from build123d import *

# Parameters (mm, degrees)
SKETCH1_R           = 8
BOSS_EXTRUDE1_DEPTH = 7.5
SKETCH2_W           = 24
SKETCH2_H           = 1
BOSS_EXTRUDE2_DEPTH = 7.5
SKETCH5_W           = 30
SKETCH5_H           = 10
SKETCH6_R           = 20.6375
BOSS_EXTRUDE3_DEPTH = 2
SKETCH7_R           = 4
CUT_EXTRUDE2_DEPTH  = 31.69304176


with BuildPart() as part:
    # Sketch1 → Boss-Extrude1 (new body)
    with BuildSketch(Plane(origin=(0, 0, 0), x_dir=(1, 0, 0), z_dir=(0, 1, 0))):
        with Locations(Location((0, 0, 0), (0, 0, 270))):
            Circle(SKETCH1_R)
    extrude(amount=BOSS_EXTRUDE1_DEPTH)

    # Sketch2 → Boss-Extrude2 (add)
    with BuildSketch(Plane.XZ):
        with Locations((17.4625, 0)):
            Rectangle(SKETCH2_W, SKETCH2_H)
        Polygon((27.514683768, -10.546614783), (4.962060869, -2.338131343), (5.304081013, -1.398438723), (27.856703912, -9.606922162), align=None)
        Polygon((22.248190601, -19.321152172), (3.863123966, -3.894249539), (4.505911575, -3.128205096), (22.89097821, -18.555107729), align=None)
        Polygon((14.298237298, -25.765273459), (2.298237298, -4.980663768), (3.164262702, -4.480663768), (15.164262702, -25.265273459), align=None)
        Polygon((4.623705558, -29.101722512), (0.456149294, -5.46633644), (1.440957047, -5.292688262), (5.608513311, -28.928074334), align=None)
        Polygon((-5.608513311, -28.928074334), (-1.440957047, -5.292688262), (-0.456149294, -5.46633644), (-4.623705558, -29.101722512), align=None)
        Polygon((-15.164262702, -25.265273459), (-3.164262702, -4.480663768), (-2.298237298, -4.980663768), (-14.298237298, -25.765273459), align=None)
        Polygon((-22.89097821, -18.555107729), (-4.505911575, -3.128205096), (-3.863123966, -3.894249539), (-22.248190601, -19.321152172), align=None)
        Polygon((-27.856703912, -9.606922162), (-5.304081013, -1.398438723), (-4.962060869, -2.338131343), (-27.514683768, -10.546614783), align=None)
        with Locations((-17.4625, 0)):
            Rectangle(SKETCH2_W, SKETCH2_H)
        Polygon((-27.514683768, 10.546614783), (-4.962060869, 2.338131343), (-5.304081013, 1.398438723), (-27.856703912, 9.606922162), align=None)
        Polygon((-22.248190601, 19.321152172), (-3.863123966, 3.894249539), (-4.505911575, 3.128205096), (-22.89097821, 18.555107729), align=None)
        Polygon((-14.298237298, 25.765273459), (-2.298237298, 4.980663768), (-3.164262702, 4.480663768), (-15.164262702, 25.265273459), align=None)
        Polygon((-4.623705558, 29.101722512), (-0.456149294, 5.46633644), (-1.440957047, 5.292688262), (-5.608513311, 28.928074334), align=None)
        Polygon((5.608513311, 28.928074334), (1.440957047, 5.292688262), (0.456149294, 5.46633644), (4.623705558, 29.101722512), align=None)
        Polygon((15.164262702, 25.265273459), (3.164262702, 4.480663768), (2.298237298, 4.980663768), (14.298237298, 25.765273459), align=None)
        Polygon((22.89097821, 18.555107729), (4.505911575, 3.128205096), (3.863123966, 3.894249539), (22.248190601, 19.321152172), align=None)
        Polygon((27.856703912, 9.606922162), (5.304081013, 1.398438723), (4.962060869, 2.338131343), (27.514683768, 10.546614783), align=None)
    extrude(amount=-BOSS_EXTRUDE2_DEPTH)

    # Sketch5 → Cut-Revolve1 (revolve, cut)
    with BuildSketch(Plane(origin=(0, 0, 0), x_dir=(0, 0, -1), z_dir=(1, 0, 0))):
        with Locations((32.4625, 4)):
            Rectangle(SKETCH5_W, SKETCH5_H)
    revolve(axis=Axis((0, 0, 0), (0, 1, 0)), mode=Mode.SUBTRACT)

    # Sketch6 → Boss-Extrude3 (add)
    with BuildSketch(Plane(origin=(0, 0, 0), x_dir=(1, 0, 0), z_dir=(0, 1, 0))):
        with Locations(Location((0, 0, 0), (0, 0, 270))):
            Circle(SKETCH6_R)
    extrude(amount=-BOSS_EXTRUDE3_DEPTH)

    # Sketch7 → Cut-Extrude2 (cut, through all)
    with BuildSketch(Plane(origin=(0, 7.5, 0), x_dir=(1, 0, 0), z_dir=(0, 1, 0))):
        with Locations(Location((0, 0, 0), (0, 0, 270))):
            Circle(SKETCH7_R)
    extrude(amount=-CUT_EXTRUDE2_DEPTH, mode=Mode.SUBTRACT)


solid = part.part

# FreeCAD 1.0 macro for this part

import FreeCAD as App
import Part
import Sketcher

V = App.Vector
Q = App.Units.Quantity


def add_polygon(sketch, points):
    """Adds a closed chain of lines whose ends are joined by coincident constraints."""
    first, n = sketch.GeometryCount, len(points)
    for a, b in zip(points, points[1:] + points[:1]):
        sketch.addGeometry(Part.LineSegment(App.Vector(*a, 0), App.Vector(*b, 0)), False)
    for i in range(n):
        sketch.addConstraint(Sketcher.Constraint("Coincident", first + i, 2, first + (i + 1) % n, 1))

doc = App.newDocument("Part")
body = doc.addObject("PartDesign::Body", "Body")

# Sketch on XZ plane
sketch1 = body.newObject("Sketcher::SketchObject", "Sketch")
sketch1.AttachmentSupport = (doc.getObject("XZ_Plane"), [""])
sketch1.MapMode = "FlatFace"
sketch1.addGeometry(Part.Circle(V(0, 0, 0), V(0, 0, 1), 8), False)
sketch1.addConstraint(Sketcher.Constraint("Coincident", 0, 3, -1, 1))
sketch1.addConstraint(Sketcher.Constraint("Diameter", 0, Q("16 mm")))
pad1 = body.newObject("PartDesign::Pad", "Pad")
pad1.Profile = sketch1
pad1.Length = 7.5
pad1.Reversed = True

# Sketch on XZ plane
sketch2 = body.newObject("Sketcher::SketchObject", "Sketch001")
sketch2.AttachmentSupport = (doc.getObject("XZ_Plane"), [""])
sketch2.MapMode = "FlatFace"
add_polygon(sketch2, [(5.4625, 0.5), (5.4625, -0.5), (29.4625, -0.5), (29.4625, 0.5)])  # lines 0-3
add_polygon(sketch2, [(4.962061, -2.338131), (27.514684, -10.546615), (27.856704, -9.606922), (5.304081, -1.398439)])  # lines 4-7
add_polygon(sketch2, [(3.863124, -3.89425), (22.248191, -19.321152), (22.890978, -18.555108), (4.505912, -3.128205)])  # lines 8-11
add_polygon(sketch2, [(2.298237, -4.980664), (14.298237, -25.765273), (15.164263, -25.265273), (3.164263, -4.480664)])  # lines 12-15
add_polygon(sketch2, [(0.456149, -5.466336), (4.623706, -29.101723), (5.608513, -28.928074), (1.440957, -5.292688)])  # lines 16-19
add_polygon(sketch2, [(-1.440957, -5.292688), (-5.608513, -28.928074), (-4.623706, -29.101723), (-0.456149, -5.466336)])  # lines 20-23
add_polygon(sketch2, [(-3.164263, -4.480664), (-15.164263, -25.265273), (-14.298237, -25.765273), (-2.298237, -4.980664)])  # lines 24-27
add_polygon(sketch2, [(-4.505912, -3.128205), (-22.890978, -18.555108), (-22.248191, -19.321152), (-3.863124, -3.89425)])  # lines 28-31
add_polygon(sketch2, [(-5.304081, -1.398439), (-27.856704, -9.606922), (-27.514684, -10.546615), (-4.962061, -2.338131)])  # lines 32-35
add_polygon(sketch2, [(-29.4625, 0.5), (-29.4625, -0.5), (-5.4625, -0.5), (-5.4625, 0.5)])  # lines 36-39
add_polygon(sketch2, [(-4.962061, 2.338131), (-27.514684, 10.546615), (-27.856704, 9.606922), (-5.304081, 1.398439)])  # lines 40-43
add_polygon(sketch2, [(-3.863124, 3.89425), (-22.248191, 19.321152), (-22.890978, 18.555108), (-4.505912, 3.128205)])  # lines 44-47
add_polygon(sketch2, [(-2.298237, 4.980664), (-14.298237, 25.765273), (-15.164263, 25.265273), (-3.164263, 4.480664)])  # lines 48-51
add_polygon(sketch2, [(-0.456149, 5.466336), (-4.623706, 29.101723), (-5.608513, 28.928074), (-1.440957, 5.292688)])  # lines 52-55
add_polygon(sketch2, [(1.440957, 5.292688), (5.608513, 28.928074), (4.623706, 29.101723), (0.456149, 5.466336)])  # lines 56-59
add_polygon(sketch2, [(3.164263, 4.480664), (15.164263, 25.265273), (14.298237, 25.765273), (2.298237, 4.980664)])  # lines 60-63
add_polygon(sketch2, [(4.505912, 3.128205), (22.890978, 18.555108), (22.248191, 19.321152), (3.863124, 3.89425)])  # lines 64-67
add_polygon(sketch2, [(5.304081, 1.398439), (27.856704, 9.606922), (27.514684, 10.546615), (4.962061, 2.338131)])  # lines 68-71
sketch2.addConstraint(Sketcher.Constraint("Vertical", 0))
sketch2.addConstraint(Sketcher.Constraint("Horizontal", 1))
sketch2.addConstraint(Sketcher.Constraint("Vertical", 2))
sketch2.addConstraint(Sketcher.Constraint("Horizontal", 3))
sketch2.addConstraint(Sketcher.Constraint("Vertical", 36))
sketch2.addConstraint(Sketcher.Constraint("Horizontal", 37))
sketch2.addConstraint(Sketcher.Constraint("Vertical", 38))
sketch2.addConstraint(Sketcher.Constraint("Horizontal", 39))
sketch2.addConstraint(Sketcher.Constraint("Symmetric", 2, 2, 36, 2, -1, 1))
sketch2.addConstraint(Sketcher.Constraint("Symmetric", 0, 2, 38, 2, -1, 1))
sketch2.addConstraint(Sketcher.Constraint("Symmetric", 4, 2, 40, 2, -1, 1))
sketch2.addConstraint(Sketcher.Constraint("Symmetric", 5, 2, 41, 2, -1, 1))
sketch2.addConstraint(Sketcher.Constraint("Symmetric", 6, 2, 42, 2, -1, 1))
sketch2.addConstraint(Sketcher.Constraint("Symmetric", 7, 2, 43, 2, -1, 1))
sketch2.addConstraint(Sketcher.Constraint("Symmetric", 8, 2, 44, 2, -1, 1))
sketch2.addConstraint(Sketcher.Constraint("Symmetric", 9, 2, 45, 2, -1, 1))
sketch2.addConstraint(Sketcher.Constraint("Symmetric", 10, 2, 46, 2, -1, 1))
sketch2.addConstraint(Sketcher.Constraint("Symmetric", 11, 2, 47, 2, -1, 1))
sketch2.addConstraint(Sketcher.Constraint("Symmetric", 12, 2, 48, 2, -1, 1))
sketch2.addConstraint(Sketcher.Constraint("Symmetric", 13, 2, 49, 2, -1, 1))
sketch2.addConstraint(Sketcher.Constraint("Symmetric", 14, 2, 50, 2, -1, 1))
sketch2.addConstraint(Sketcher.Constraint("Symmetric", 15, 2, 51, 2, -1, 1))
sketch2.addConstraint(Sketcher.Constraint("Symmetric", 16, 2, 52, 2, -1, 1))
sketch2.addConstraint(Sketcher.Constraint("Symmetric", 17, 2, 53, 2, -1, 1))
sketch2.addConstraint(Sketcher.Constraint("Symmetric", 18, 2, 54, 2, -1, 1))
sketch2.addConstraint(Sketcher.Constraint("Symmetric", 19, 2, 55, 2, -1, 1))
sketch2.addConstraint(Sketcher.Constraint("Symmetric", 20, 2, 56, 2, -1, 1))
sketch2.addConstraint(Sketcher.Constraint("Symmetric", 21, 2, 57, 2, -1, 1))
sketch2.addConstraint(Sketcher.Constraint("Symmetric", 22, 2, 58, 2, -1, 1))
sketch2.addConstraint(Sketcher.Constraint("Symmetric", 23, 2, 59, 2, -1, 1))
sketch2.addConstraint(Sketcher.Constraint("Symmetric", 24, 2, 60, 2, -1, 1))
sketch2.addConstraint(Sketcher.Constraint("Symmetric", 25, 2, 61, 2, -1, 1))
sketch2.addConstraint(Sketcher.Constraint("Symmetric", 26, 2, 62, 2, -1, 1))
sketch2.addConstraint(Sketcher.Constraint("Symmetric", 27, 2, 63, 2, -1, 1))
sketch2.addConstraint(Sketcher.Constraint("Symmetric", 28, 2, 64, 2, -1, 1))
sketch2.addConstraint(Sketcher.Constraint("Symmetric", 29, 2, 65, 2, -1, 1))
sketch2.addConstraint(Sketcher.Constraint("Symmetric", 30, 2, 66, 2, -1, 1))
sketch2.addConstraint(Sketcher.Constraint("Symmetric", 31, 2, 67, 2, -1, 1))
sketch2.addConstraint(Sketcher.Constraint("Symmetric", 32, 2, 68, 2, -1, 1))
sketch2.addConstraint(Sketcher.Constraint("Symmetric", 33, 2, 69, 2, -1, 1))
sketch2.addConstraint(Sketcher.Constraint("Symmetric", 34, 2, 70, 2, -1, 1))
sketch2.addConstraint(Sketcher.Constraint("Symmetric", 35, 2, 71, 2, -1, 1))
sketch2.addConstraint(Sketcher.Constraint("Symmetric", 17, 2, 20, 2, -2))
sketch2.addConstraint(Sketcher.Constraint("Symmetric", 16, 2, 21, 2, -2))
sketch2.addConstraint(Sketcher.Constraint("Symmetric", 19, 2, 22, 2, -2))
sketch2.addConstraint(Sketcher.Constraint("Symmetric", 18, 2, 23, 2, -2))
sketch2.addConstraint(Sketcher.Constraint("Symmetric", 13, 2, 24, 2, -2))
sketch2.addConstraint(Sketcher.Constraint("Symmetric", 12, 2, 25, 2, -2))
sketch2.addConstraint(Sketcher.Constraint("Symmetric", 15, 2, 26, 2, -2))
sketch2.addConstraint(Sketcher.Constraint("Symmetric", 14, 2, 27, 2, -2))
sketch2.addConstraint(Sketcher.Constraint("Symmetric", 9, 2, 28, 2, -2))
sketch2.addConstraint(Sketcher.Constraint("Symmetric", 8, 2, 29, 2, -2))
sketch2.addConstraint(Sketcher.Constraint("Symmetric", 11, 2, 30, 2, -2))
sketch2.addConstraint(Sketcher.Constraint("Symmetric", 10, 2, 31, 2, -2))
sketch2.addConstraint(Sketcher.Constraint("Symmetric", 5, 2, 32, 2, -2))
sketch2.addConstraint(Sketcher.Constraint("Symmetric", 4, 2, 33, 2, -2))
sketch2.addConstraint(Sketcher.Constraint("Symmetric", 7, 2, 34, 2, -2))
sketch2.addConstraint(Sketcher.Constraint("Symmetric", 6, 2, 35, 2, -2))
sketch2.addConstraint(Sketcher.Constraint("Perpendicular", 4, 5))
sketch2.addConstraint(Sketcher.Constraint("Perpendicular", 5, 6))
sketch2.addConstraint(Sketcher.Constraint("Perpendicular", 6, 7))
sketch2.addConstraint(Sketcher.Constraint("Perpendicular", 8, 9))
sketch2.addConstraint(Sketcher.Constraint("Perpendicular", 9, 10))
sketch2.addConstraint(Sketcher.Constraint("Perpendicular", 10, 11))
sketch2.addConstraint(Sketcher.Constraint("Perpendicular", 12, 13))
sketch2.addConstraint(Sketcher.Constraint("Perpendicular", 13, 14))
sketch2.addConstraint(Sketcher.Constraint("Perpendicular", 14, 15))
sketch2.addConstraint(Sketcher.Constraint("Perpendicular", 16, 17))
sketch2.addConstraint(Sketcher.Constraint("Perpendicular", 17, 18))
sketch2.addConstraint(Sketcher.Constraint("Perpendicular", 18, 19))
sketch2.addConstraint(Sketcher.Constraint("Horizontal", 1, 2, 36, 2))
sketch2.addConstraint(Sketcher.Constraint("Equal", 6, 8))
sketch2.addConstraint(Sketcher.Constraint("Equal", 7, 9))
sketch2.addConstraint(Sketcher.Constraint("Equal", 10, 12))
sketch2.addConstraint(Sketcher.Constraint("Equal", 11, 13))
sketch2.addConstraint(Sketcher.Constraint("Equal", 14, 16))
sketch2.addConstraint(Sketcher.Constraint("Equal", 15, 17))
sketch2.addConstraint(Sketcher.Constraint("DistanceX", 1, 1, 1, 2, Q("24 mm")))
sketch2.addConstraint(Sketcher.Constraint("DistanceY", 0, 2, 0, 1, Q("1 mm")))
sketch2.addConstraint(Sketcher.Constraint("Angle", 4, Q("-20 deg")))
sketch2.addConstraint(Sketcher.Constraint("Angle", 8, Q("-40 deg")))
sketch2.addConstraint(Sketcher.Constraint("Angle", 12, Q("-60 deg")))
sketch2.addConstraint(Sketcher.Constraint("Angle", 16, Q("-80 deg")))
sketch2.addConstraint(Sketcher.Constraint("Distance", 4, Q("24 mm")))
sketch2.addConstraint(Sketcher.Constraint("Distance", 5, Q("1 mm")))
sketch2.addConstraint(Sketcher.Constraint("DistanceX", -1, 1, 0, 2, Q("5.4625 mm")))
sketch2.addConstraint(Sketcher.Constraint("DistanceX", -1, 1, 6, 2, Q("5.304081 mm")))
sketch2.addConstraint(Sketcher.Constraint("DistanceY", 6, 2, -1, 1, Q("1.398439 mm")))
sketch2.addConstraint(Sketcher.Constraint("DistanceX", -1, 1, 8, 2, Q("22.248191 mm")))
sketch2.addConstraint(Sketcher.Constraint("DistanceY", 11, 2, -1, 1, Q("3.89425 mm")))
sketch2.addConstraint(Sketcher.Constraint("DistanceY", 18, 2, -1, 1, Q("5.292688 mm")))
sketch2.addConstraint(Sketcher.Constraint("DistanceX", -1, 1, 19, 2, Q("0.456149 mm")))
sketch2.addConstraint(Sketcher.Constraint("DistanceX", -1, 1, 12, 2, Q("14.298237 mm")))
sketch2.addConstraint(Sketcher.Constraint("DistanceY", 12, 2, -1, 1, Q("25.765273 mm")))
pad2 = body.newObject("PartDesign::Pad", "Pad001")
pad2.Profile = sketch2
pad2.Length = 7.5
pad2.Reversed = True

# Sketch on YZ plane
sketch3 = body.newObject("Sketcher::SketchObject", "Sketch002")
sketch3.AttachmentSupport = (doc.getObject("YZ_Plane"), [""])
sketch3.MapMode = "FlatFace"
add_polygon(sketch3, [(9, -17.4625), (-1, -17.4625), (-1, -47.4625), (9, -47.4625)])  # lines 0-3
sketch3.addConstraint(Sketcher.Constraint("Horizontal", 0))
sketch3.addConstraint(Sketcher.Constraint("Vertical", 1))
sketch3.addConstraint(Sketcher.Constraint("Horizontal", 2))
sketch3.addConstraint(Sketcher.Constraint("Vertical", 3))
sketch3.addConstraint(Sketcher.Constraint("DistanceX", 0, 2, 0, 1, Q("10 mm")))
sketch3.addConstraint(Sketcher.Constraint("DistanceY", 1, 2, 1, 1, Q("30 mm")))
sketch3.addConstraint(Sketcher.Constraint("DistanceX", 0, 2, -1, 1, Q("1 mm")))
sketch3.addConstraint(Sketcher.Constraint("DistanceY", 0, 2, -1, 1, Q("17.4625 mm")))
groove = body.newObject("PartDesign::Groove", "Groove")
groove.Profile = sketch3
groove.ReferenceAxis = (sketch3, ["H_Axis"])
groove.Angle = 360

# Sketch on XZ plane
sketch4 = body.newObject("Sketcher::SketchObject", "Sketch003")
sketch4.AttachmentSupport = (doc.getObject("XZ_Plane"), [""])
sketch4.MapMode = "FlatFace"
sketch4.addGeometry(Part.Circle(V(0, 0, 0), V(0, 0, 1), 20.6375), False)
sketch4.addConstraint(Sketcher.Constraint("Coincident", 0, 3, -1, 1))
sketch4.addConstraint(Sketcher.Constraint("Diameter", 0, Q("41.275 mm")))
pad3 = body.newObject("PartDesign::Pad", "Pad002")
pad3.Profile = sketch4
pad3.Length = 2

# Sketch on XZ plane
sketch5 = body.newObject("Sketcher::SketchObject", "Sketch004")
sketch5.AttachmentSupport = (doc.getObject("XZ_Plane"), [""])
sketch5.MapMode = "FlatFace"
sketch5.AttachmentOffset = App.Placement(V(0, 0, -7.5), App.Rotation())
sketch5.addGeometry(Part.Circle(V(0, 0, 0), V(0, 0, 1), 4), False)
sketch5.addConstraint(Sketcher.Constraint("Coincident", 0, 3, -1, 1))
sketch5.addConstraint(Sketcher.Constraint("Diameter", 0, Q("8 mm")))
pocket1 = body.newObject("PartDesign::Pocket", "Pocket")
pocket1.Profile = sketch5
pocket1.Type = "ThroughAll"
pocket1.Reversed = True

doc.recompute()
